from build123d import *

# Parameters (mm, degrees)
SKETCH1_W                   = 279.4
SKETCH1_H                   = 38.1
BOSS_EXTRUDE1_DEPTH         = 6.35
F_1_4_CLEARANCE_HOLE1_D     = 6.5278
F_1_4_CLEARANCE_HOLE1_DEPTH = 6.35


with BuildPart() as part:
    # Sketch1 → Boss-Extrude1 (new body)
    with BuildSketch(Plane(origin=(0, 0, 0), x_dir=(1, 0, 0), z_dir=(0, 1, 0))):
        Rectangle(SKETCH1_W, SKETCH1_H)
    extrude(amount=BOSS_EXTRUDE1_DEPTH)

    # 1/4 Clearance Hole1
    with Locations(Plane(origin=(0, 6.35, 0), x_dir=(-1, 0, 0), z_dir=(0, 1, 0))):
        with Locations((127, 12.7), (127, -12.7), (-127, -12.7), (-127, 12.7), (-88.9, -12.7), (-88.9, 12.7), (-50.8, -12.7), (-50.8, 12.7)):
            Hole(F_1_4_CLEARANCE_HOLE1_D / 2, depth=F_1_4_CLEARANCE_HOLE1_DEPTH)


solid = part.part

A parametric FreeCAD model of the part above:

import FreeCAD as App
import Part
import Sketcher
from FreeCAD import Vector
Q = App.Units.Quantity

doc = App.newDocument("Part")
body = doc.addObject("PartDesign::Body", "Body")

# Sketch on XZ plane
sketch1 = body.newObject("Sketcher::SketchObject", "Sketch")
sketch1.AttachmentSupport = (doc.getObject("XZ_Plane"), [""])
sketch1.MapMode = "FlatFace"
sketch1.addGeometry(Part.LineSegment(Vector(-139.7, -19.05, 0), Vector(-139.7, 19.05, 0)), False)
sketch1.addGeometry(Part.LineSegment(Vector(-139.7, 19.05, 0), Vector(139.7, 19.05, 0)), False)
sketch1.addGeometry(Part.LineSegment(Vector(139.7, 19.05, 0), Vector(139.7, -19.05, 0)), False)
sketch1.addGeometry(Part.LineSegment(Vector(139.7, -19.05, 0), Vector(-139.7, -19.05, 0)), False)
sketch1.addConstraint(Sketcher.Constraint("Coincident", 0, 2, 1, 1))
sketch1.addConstraint(Sketcher.Constraint("Coincident", 1, 2, 2, 1))
sketch1.addConstraint(Sketcher.Constraint("Coincident", 2, 2, 3, 1))
sketch1.addConstraint(Sketcher.Constraint("Coincident", 3, 2, 0, 1))
sketch1.addConstraint(Sketcher.Constraint("Vertical", 0))
sketch1.addConstraint(Sketcher.Constraint("Horizontal", 1))
sketch1.addConstraint(Sketcher.Constraint("Vertical", 2))
sketch1.addConstraint(Sketcher.Constraint("Horizontal", 3))
sketch1.addConstraint(Sketcher.Constraint("Symmetric", 0, 2, 2, 2, -1, 1))
sketch1.addConstraint(Sketcher.Constraint("DistanceX", 1, 1, 1, 2, Q("11 in")))
sketch1.addConstraint(Sketcher.Constraint("DistanceY", 0, 1, 0, 2, Q("1.5 in")))
pad1 = body.newObject("PartDesign::Pad", "Pad")
pad1.Profile = sketch1
pad1.Length = Q("0.25 in")
pad1.Reversed = True

# Sketch on XZ plane
sketch2 = body.newObject("Sketcher::SketchObject", "Sketch001")
sketch2.AttachmentSupport = (doc.getObject("XZ_Plane"), [""])
sketch2.MapMode = "FlatFace"
sketch2.AttachmentOffset = App.Placement(Vector(0, 0, -0.25 * 25.4), App.Rotation())
sketch2.addGeometry(Part.Circle(Vector(-127, 12.7, 0), Vector(0, 0, 1), 3.2639), False)
sketch2.addGeometry(Part.Circle(Vector(-127, -12.7, 0), Vector(0, 0, 1), 3.2639), False)
sketch2.addGeometry(Part.Circle(Vector(127, -12.7, 0), Vector(0, 0, 1), 3.2639), False)
sketch2.addGeometry(Part.Circle(Vector(127, 12.7, 0), Vector(0, 0, 1), 3.2639), False)
sketch2.addGeometry(Part.Circle(Vector(88.9, -12.7, 0), Vector(0, 0, 1), 3.2639), False)
sketch2.addGeometry(Part.Circle(Vector(88.9, 12.7, 0), Vector(0, 0, 1), 3.2639), False)
sketch2.addGeometry(Part.Circle(Vector(50.8, -12.7, 0), Vector(0, 0, 1), 3.2639), False)
sketch2.addGeometry(Part.Circle(Vector(50.8, 12.7, 0), Vector(0, 0, 1), 3.2639), False)
sketch2.addConstraint(Sketcher.Constraint("Equal", 0, 1))
sketch2.addConstraint(Sketcher.Constraint("Equal", 1, 2))
sketch2.addConstraint(Sketcher.Constraint("Equal", 2, 3))
sketch2.addConstraint(Sketcher.Constraint("Equal", 3, 4))
sketch2.addConstraint(Sketcher.Constraint("Equal", 4, 5))
sketch2.addConstraint(Sketcher.Constraint("Equal", 5, 6))
sketch2.addConstraint(Sketcher.Constraint("Equal", 6, 7))
sketch2.addConstraint(Sketcher.Constraint("Symmetric", 0, 3, 2, 3, -1, 1))
sketch2.addConstraint(Sketcher.Constraint("Symmetric", 1, 3, 3, 3, -1, 1))
sketch2.addConstraint(Sketcher.Constraint("Symmetric", 1, 3, 2, 3, -2))
sketch2.addConstraint(Sketcher.Constraint("Symmetric", 4, 3, 5, 3, -1))
sketch2.addConstraint(Sketcher.Constraint("Symmetric", 6, 3, 7, 3, -1))
sketch2.addConstraint(Sketcher.Constraint("Horizontal", 2, 3, 4, 3))
sketch2.addConstraint(Sketcher.Constraint("Horizontal", 4, 3, 6, 3))
sketch2.addConstraint(Sketcher.Constraint("Diameter", 0, Q("0.257 in")))
sketch2.addConstraint(Sketcher.Constraint("DistanceX", 0, 3, -1, 1, Q("5 in")))
sketch2.addConstraint(Sketcher.Constraint("DistanceX", -1, 1, 6, 3, Q("2 in")))
sketch2.addConstraint(Sketcher.Constraint("DistanceY", 1, 3, 0, 3, Q("1 in")))
sketch2.addConstraint(Sketcher.Constraint("DistanceX", -1, 1, 4, 3, Q("3.5 in")))
doc.recompute()
hole = body.newObject("PartDesign::Hole", "Hole")
hole.Profile = sketch2
hole.ThreadType = "None"
hole.Diameter = Q("0.257 in")
hole.DepthType = "Dimension"
hole.Depth = Q("0.25 in")
hole.DrillPoint = "Flat"
hole.Reversed = True

doc.recompute()
